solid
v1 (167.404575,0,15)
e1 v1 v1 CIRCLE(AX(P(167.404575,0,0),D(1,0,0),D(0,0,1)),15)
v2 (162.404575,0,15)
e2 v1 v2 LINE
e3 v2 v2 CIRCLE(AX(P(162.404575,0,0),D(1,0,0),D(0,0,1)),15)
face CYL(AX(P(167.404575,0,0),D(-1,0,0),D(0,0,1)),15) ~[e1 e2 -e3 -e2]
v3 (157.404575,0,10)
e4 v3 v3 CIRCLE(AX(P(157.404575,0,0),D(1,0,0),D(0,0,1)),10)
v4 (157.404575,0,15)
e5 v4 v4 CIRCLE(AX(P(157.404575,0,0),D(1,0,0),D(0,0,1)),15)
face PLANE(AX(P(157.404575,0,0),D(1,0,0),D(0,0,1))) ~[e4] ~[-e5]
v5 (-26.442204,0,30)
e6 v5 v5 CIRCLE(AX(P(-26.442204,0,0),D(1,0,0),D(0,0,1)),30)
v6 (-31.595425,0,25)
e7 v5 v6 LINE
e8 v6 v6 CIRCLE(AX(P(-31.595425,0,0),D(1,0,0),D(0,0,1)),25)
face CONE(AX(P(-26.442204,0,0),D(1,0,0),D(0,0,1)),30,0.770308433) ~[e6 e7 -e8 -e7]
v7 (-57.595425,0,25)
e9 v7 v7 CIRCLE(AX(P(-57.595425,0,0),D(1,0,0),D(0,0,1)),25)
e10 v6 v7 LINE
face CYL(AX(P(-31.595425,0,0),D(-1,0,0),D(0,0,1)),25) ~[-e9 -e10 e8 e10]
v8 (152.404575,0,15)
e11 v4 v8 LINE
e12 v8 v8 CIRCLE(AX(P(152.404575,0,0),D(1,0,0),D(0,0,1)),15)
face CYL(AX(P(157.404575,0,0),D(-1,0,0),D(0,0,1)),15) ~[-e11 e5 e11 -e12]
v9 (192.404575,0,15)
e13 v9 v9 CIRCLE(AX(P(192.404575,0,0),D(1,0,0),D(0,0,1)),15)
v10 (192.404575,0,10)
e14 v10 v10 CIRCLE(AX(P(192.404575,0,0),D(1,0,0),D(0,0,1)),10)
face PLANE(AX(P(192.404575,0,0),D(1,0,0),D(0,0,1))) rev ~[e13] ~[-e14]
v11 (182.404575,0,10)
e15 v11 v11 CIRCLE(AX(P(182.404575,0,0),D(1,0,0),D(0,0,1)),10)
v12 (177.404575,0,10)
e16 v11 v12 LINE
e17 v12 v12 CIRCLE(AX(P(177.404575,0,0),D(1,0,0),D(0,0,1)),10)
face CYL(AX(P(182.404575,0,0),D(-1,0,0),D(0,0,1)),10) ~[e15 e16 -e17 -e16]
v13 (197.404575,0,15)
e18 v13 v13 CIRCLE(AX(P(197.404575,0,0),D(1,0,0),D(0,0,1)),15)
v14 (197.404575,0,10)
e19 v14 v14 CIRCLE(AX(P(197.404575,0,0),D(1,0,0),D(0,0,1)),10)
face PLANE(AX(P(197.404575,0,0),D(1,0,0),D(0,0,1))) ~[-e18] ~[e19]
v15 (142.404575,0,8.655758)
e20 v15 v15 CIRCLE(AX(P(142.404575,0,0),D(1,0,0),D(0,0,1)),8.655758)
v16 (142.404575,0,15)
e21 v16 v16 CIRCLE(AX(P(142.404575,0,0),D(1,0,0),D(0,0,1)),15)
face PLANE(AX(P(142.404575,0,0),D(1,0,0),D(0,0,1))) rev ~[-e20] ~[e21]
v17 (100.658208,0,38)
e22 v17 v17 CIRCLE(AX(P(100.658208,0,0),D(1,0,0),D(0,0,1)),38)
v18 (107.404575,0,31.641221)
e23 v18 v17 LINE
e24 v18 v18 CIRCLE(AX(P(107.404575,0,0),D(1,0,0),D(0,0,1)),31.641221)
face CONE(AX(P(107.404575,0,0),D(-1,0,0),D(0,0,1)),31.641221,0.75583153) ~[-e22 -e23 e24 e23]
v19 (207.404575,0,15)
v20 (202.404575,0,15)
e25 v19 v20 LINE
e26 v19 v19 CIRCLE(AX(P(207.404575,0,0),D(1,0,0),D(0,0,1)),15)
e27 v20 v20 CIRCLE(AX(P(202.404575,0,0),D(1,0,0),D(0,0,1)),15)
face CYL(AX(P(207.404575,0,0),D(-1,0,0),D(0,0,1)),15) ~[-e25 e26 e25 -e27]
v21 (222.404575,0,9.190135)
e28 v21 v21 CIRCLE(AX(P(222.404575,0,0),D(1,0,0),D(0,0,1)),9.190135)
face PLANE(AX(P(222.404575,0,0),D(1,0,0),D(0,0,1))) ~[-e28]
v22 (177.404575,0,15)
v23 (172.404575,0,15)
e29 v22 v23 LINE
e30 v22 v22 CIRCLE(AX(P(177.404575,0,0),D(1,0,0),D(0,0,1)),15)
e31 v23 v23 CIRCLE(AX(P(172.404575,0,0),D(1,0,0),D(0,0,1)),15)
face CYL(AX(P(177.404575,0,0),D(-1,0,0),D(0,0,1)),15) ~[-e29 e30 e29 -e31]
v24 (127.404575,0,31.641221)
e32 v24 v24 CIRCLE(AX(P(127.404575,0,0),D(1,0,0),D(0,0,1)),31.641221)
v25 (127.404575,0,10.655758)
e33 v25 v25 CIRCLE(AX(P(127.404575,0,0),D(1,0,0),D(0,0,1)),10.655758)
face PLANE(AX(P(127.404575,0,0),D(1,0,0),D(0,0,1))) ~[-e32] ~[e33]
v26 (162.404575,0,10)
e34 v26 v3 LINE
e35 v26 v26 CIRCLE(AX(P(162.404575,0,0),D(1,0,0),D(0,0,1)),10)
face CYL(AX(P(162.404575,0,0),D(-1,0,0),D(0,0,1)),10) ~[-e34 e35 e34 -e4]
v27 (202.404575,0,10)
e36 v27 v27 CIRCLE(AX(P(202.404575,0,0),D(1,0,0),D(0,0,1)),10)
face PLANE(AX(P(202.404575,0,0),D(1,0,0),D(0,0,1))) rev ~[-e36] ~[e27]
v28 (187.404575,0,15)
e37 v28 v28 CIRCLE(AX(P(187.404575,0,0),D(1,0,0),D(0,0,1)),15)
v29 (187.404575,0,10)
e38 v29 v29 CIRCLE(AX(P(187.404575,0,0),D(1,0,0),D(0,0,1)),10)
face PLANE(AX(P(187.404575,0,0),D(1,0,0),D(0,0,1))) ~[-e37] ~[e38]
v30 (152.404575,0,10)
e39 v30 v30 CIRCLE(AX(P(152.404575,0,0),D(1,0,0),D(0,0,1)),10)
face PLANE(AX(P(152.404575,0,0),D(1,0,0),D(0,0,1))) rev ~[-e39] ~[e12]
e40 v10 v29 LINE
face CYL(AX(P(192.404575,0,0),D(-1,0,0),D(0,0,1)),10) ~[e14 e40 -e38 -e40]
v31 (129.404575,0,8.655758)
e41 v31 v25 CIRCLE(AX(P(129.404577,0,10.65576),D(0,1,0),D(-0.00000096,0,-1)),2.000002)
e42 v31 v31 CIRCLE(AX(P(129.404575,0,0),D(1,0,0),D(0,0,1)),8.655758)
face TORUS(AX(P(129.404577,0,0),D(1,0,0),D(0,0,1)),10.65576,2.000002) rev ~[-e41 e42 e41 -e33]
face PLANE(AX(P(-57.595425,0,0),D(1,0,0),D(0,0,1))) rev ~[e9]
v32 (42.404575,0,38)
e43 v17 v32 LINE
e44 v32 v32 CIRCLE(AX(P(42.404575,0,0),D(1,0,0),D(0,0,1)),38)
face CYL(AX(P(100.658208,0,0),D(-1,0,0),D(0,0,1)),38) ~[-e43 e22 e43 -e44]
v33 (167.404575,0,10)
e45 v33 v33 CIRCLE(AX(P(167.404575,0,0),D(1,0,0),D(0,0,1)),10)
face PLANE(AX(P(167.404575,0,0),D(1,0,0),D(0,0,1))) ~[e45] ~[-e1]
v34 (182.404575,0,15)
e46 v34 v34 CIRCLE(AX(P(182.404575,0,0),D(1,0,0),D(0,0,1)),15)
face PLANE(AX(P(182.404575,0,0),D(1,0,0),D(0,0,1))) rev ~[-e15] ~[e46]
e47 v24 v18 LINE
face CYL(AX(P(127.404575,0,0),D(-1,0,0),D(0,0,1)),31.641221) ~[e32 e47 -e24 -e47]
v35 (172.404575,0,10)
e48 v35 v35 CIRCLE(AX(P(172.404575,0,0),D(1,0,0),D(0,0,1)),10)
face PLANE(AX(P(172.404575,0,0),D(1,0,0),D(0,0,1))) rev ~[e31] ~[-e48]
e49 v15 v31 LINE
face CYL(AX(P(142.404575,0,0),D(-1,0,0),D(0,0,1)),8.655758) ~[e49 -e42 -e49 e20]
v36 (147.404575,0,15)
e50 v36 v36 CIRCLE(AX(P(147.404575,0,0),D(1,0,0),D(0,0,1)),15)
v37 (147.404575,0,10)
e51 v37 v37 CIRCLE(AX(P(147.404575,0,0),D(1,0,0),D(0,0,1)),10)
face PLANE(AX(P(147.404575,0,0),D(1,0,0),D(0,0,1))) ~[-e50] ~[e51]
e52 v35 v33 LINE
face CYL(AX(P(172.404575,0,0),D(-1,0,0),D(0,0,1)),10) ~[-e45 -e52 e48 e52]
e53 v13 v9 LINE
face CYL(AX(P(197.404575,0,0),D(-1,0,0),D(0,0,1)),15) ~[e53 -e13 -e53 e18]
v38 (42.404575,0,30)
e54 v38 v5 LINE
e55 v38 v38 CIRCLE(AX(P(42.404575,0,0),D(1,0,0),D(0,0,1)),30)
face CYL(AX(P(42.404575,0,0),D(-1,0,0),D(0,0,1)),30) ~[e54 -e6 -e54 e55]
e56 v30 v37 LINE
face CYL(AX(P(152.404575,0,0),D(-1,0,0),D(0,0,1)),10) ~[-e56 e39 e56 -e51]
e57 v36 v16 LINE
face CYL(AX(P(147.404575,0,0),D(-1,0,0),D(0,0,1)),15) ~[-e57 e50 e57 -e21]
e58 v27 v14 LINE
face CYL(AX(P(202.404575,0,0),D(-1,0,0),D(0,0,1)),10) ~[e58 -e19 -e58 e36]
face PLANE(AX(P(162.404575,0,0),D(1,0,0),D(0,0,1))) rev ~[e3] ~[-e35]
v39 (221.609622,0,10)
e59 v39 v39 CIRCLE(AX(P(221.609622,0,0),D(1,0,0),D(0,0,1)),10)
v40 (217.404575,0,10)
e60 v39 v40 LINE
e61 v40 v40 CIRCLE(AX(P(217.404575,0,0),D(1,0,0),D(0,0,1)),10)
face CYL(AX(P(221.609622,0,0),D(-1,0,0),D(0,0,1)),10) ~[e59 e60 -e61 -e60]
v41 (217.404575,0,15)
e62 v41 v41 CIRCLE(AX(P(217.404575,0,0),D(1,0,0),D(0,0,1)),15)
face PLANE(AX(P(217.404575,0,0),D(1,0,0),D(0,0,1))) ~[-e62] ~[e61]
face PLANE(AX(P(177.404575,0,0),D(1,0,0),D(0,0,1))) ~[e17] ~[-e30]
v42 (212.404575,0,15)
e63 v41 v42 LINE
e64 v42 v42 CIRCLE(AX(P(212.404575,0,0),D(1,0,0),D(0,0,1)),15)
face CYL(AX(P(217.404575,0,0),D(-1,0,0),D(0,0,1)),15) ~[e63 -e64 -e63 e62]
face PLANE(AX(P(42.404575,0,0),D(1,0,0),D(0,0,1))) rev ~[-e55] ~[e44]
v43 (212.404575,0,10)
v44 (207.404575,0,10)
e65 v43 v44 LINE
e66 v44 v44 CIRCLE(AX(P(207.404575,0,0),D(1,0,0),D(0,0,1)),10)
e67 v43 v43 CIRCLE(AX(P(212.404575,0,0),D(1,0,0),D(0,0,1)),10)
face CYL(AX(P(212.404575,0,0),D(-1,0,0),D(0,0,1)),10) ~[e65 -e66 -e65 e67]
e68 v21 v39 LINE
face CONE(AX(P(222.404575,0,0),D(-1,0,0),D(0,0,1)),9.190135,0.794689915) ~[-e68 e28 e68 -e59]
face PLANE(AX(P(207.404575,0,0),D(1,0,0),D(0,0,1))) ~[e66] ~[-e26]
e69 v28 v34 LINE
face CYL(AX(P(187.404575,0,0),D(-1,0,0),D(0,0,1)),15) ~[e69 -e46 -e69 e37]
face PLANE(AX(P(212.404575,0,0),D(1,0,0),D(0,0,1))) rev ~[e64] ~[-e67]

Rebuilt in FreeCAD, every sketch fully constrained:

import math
import FreeCAD as App
import Part
import Sketcher
Q = App.Units.Quantity

doc = App.newDocument("Part")
params = doc.addObject("Spreadsheet::Sheet", "Params")
for row, (alias, value) in enumerate([
    ("sketch1_radius", "2.000002 mm"),
    ("sketch1_width", "280 mm"),
    ("sketch1_width2", "5 mm"),
    ("sketch1_width3", "13 mm"),
    ("sketch1_width4", "20 mm"),
    ("revolution_angle", "360 deg"),
], start=1):
    params.set(f"A{row}", alias)
    params.set(f"B{row}", "=" + value)
    params.setAlias(f"B{row}", alias)

body = doc.addObject("PartDesign::Body", "Body")

sketch1 = body.newObject("Sketcher::SketchObject", "Sketch")
sketch1.AttachmentSupport = (doc.getObject("XZ_Plane"), [""])
sketch1.MapMode = "FlatFace"
sketch1.addGeometry([
    Part.LineSegment(App.Vector(-57.6, 25, 0), App.Vector(-57.6, 0, 0)),
    Part.LineSegment(App.Vector(-57.6, 0, 0), App.Vector(222.4, 0, 0)),
    Part.LineSegment(App.Vector(222.4, 0, 0), App.Vector(222.4, 9.2, 0)),
    Part.LineSegment(App.Vector(222.4, 9.2, 0), App.Vector(221.6, 10, 0)),
    Part.LineSegment(App.Vector(221.6, 10, 0), App.Vector(217.4, 10, 0)),
    Part.LineSegment(App.Vector(217.4, 10, 0), App.Vector(217.4, 15, 0)),
    Part.LineSegment(App.Vector(217.4, 15, 0), App.Vector(212.4, 15, 0)),
    Part.LineSegment(App.Vector(212.4, 15, 0), App.Vector(212.4, 10, 0)),
    Part.LineSegment(App.Vector(212.4, 10, 0), App.Vector(207.4, 10, 0)),
    Part.LineSegment(App.Vector(207.4, 10, 0), App.Vector(207.4, 15, 0)),
    Part.LineSegment(App.Vector(207.4, 15, 0), App.Vector(202.4, 15, 0)),
    Part.LineSegment(App.Vector(202.4, 15, 0), App.Vector(202.4, 10, 0)),
    Part.LineSegment(App.Vector(202.4, 10, 0), App.Vector(197.4, 10, 0)),
    Part.LineSegment(App.Vector(197.4, 10, 0), App.Vector(197.4, 15, 0)),
    Part.LineSegment(App.Vector(197.4, 15, 0), App.Vector(192.4, 15, 0)),
    Part.LineSegment(App.Vector(192.4, 15, 0), App.Vector(192.4, 10, 0)),
    Part.LineSegment(App.Vector(192.4, 10, 0), App.Vector(187.4, 10, 0)),
    Part.LineSegment(App.Vector(187.4, 10, 0), App.Vector(187.4, 15, 0)),
    Part.LineSegment(App.Vector(187.4, 15, 0), App.Vector(182.4, 15, 0)),
    Part.LineSegment(App.Vector(182.4, 15, 0), App.Vector(182.4, 10, 0)),
    Part.LineSegment(App.Vector(182.4, 10, 0), App.Vector(177.4, 10, 0)),
    Part.LineSegment(App.Vector(177.4, 10, 0), App.Vector(177.4, 15, 0)),
    Part.LineSegment(App.Vector(177.4, 15, 0), App.Vector(172.4, 15, 0)),
    Part.LineSegment(App.Vector(172.4, 15, 0), App.Vector(172.4, 10, 0)),
    Part.LineSegment(App.Vector(172.4, 10, 0), App.Vector(167.4, 10, 0)),
    Part.LineSegment(App.Vector(167.4, 10, 0), App.Vector(167.4, 15, 0)),
    Part.LineSegment(App.Vector(167.4, 15, 0), App.Vector(162.4, 15, 0)),
    Part.LineSegment(App.Vector(162.4, 15, 0), App.Vector(162.4, 10, 0)),
    Part.LineSegment(App.Vector(162.4, 10, 0), App.Vector(157.4, 10, 0)),
    Part.LineSegment(App.Vector(157.4, 10, 0), App.Vector(157.4, 15, 0)),
    Part.LineSegment(App.Vector(157.4, 15, 0), App.Vector(152.4, 15, 0)),
    Part.LineSegment(App.Vector(152.4, 15, 0), App.Vector(152.4, 10, 0)),
    Part.LineSegment(App.Vector(152.4, 10, 0), App.Vector(147.4, 10, 0)),
    Part.LineSegment(App.Vector(147.4, 10, 0), App.Vector(147.4, 15, 0)),
    Part.LineSegment(App.Vector(147.4, 15, 0), App.Vector(142.4, 15, 0)),
    Part.LineSegment(App.Vector(142.4, 15, 0), App.Vector(142.4, 8.7, 0)),
    Part.LineSegment(App.Vector(142.4, 8.7, 0), App.Vector(129.4, 8.7, 0)),
    Part.ArcOfCircle(Part.Circle(App.Vector(129.4, 10.7, 0), App.Vector(0, 0, 1), 2), math.radians(-180), math.radians(-90)),
    Part.LineSegment(App.Vector(127.4, 10.7, 0), App.Vector(127.4, 31.6, 0)),
    Part.LineSegment(App.Vector(127.4, 31.6, 0), App.Vector(107.4, 31.6, 0)),
    Part.LineSegment(App.Vector(107.4, 31.6, 0), App.Vector(100.7, 38, 0)),
    Part.LineSegment(App.Vector(100.7, 38, 0), App.Vector(42.4, 38, 0)),
    Part.LineSegment(App.Vector(42.4, 38, 0), App.Vector(42.4, 30, 0)),
    Part.LineSegment(App.Vector(42.4, 30, 0), App.Vector(-26.4, 30, 0)),
    Part.LineSegment(App.Vector(-26.4, 30, 0), App.Vector(-31.6, 25, 0)),
    Part.LineSegment(App.Vector(-31.6, 25, 0), App.Vector(-57.6, 25, 0)),
], False)
sketch1.addConstraint([
    Sketcher.Constraint("Coincident", 0, 2, 1, 1),
    Sketcher.Constraint("Coincident", 1, 2, 2, 1),
    Sketcher.Constraint("Coincident", 2, 2, 3, 1),
    Sketcher.Constraint("Coincident", 3, 2, 4, 1),
    Sketcher.Constraint("Coincident", 4, 2, 5, 1),
    Sketcher.Constraint("Coincident", 5, 2, 6, 1),
    Sketcher.Constraint("Coincident", 6, 2, 7, 1),
    Sketcher.Constraint("Coincident", 7, 2, 8, 1),
    Sketcher.Constraint("Coincident", 8, 2, 9, 1),
    Sketcher.Constraint("Coincident", 9, 2, 10, 1),
    Sketcher.Constraint("Coincident", 10, 2, 11, 1),
    Sketcher.Constraint("Coincident", 11, 2, 12, 1),
    Sketcher.Constraint("Coincident", 12, 2, 13, 1),
    Sketcher.Constraint("Coincident", 13, 2, 14, 1),
    Sketcher.Constraint("Coincident", 14, 2, 15, 1),
    Sketcher.Constraint("Coincident", 15, 2, 16, 1),
    Sketcher.Constraint("Coincident", 16, 2, 17, 1),
    Sketcher.Constraint("Coincident", 17, 2, 18, 1),
    Sketcher.Constraint("Coincident", 18, 2, 19, 1),
    Sketcher.Constraint("Coincident", 19, 2, 20, 1),
    Sketcher.Constraint("Coincident", 20, 2, 21, 1),
    Sketcher.Constraint("Coincident", 21, 2, 22, 1),
    Sketcher.Constraint("Coincident", 22, 2, 23, 1),
    Sketcher.Constraint("Coincident", 23, 2, 24, 1),
    Sketcher.Constraint("Coincident", 24, 2, 25, 1),
    Sketcher.Constraint("Coincident", 25, 2, 26, 1),
    Sketcher.Constraint("Coincident", 26, 2, 27, 1),
    Sketcher.Constraint("Coincident", 27, 2, 28, 1),
    Sketcher.Constraint("Coincident", 28, 2, 29, 1),
    Sketcher.Constraint("Coincident", 29, 2, 30, 1),
    Sketcher.Constraint("Coincident", 30, 2, 31, 1),
    Sketcher.Constraint("Coincident", 31, 2, 32, 1),
    Sketcher.Constraint("Coincident", 32, 2, 33, 1),
    Sketcher.Constraint("Coincident", 33, 2, 34, 1),
    Sketcher.Constraint("Coincident", 34, 2, 35, 1),
    Sketcher.Constraint("Coincident", 35, 2, 36, 1),
    Sketcher.Constraint("Tangent", 36, 2, 37, 2),
    Sketcher.Constraint("Tangent", 37, 1, 38, 1),
    Sketcher.Constraint("Coincident", 38, 2, 39, 1),
    Sketcher.Constraint("Coincident", 39, 2, 40, 1),
    Sketcher.Constraint("Coincident", 40, 2, 41, 1),
    Sketcher.Constraint("Coincident", 41, 2, 42, 1),
    Sketcher.Constraint("Coincident", 42, 2, 43, 1),
    Sketcher.Constraint("Coincident", 43, 2, 44, 1),
    Sketcher.Constraint("Coincident", 44, 2, 45, 1),
    Sketcher.Constraint("Coincident", 45, 2, 0, 1),
    Sketcher.Constraint("Vertical", 0),
    Sketcher.Constraint("Horizontal", 1),
    Sketcher.Constraint("Vertical", 2),
    Sketcher.Constraint("Horizontal", 4),
    Sketcher.Constraint("Vertical", 5),
    Sketcher.Constraint("Horizontal", 6),
    Sketcher.Constraint("Vertical", 7),
    Sketcher.Constraint("Horizontal", 8),
    Sketcher.Constraint("Vertical", 9),
    Sketcher.Constraint("Horizontal", 10),
    Sketcher.Constraint("Vertical", 11),
    Sketcher.Constraint("Horizontal", 12),
    Sketcher.Constraint("Vertical", 13),
    Sketcher.Constraint("Horizontal", 14),
    Sketcher.Constraint("Vertical", 15),
    Sketcher.Constraint("Horizontal", 16),
    Sketcher.Constraint("Vertical", 17),
    Sketcher.Constraint("Horizontal", 18),
    Sketcher.Constraint("Vertical", 19),
    Sketcher.Constraint("Horizontal", 20),
    Sketcher.Constraint("Vertical", 21),
    Sketcher.Constraint("Horizontal", 22),
    Sketcher.Constraint("Vertical", 23),
    Sketcher.Constraint("Horizontal", 24),
    Sketcher.Constraint("Vertical", 25),
    Sketcher.Constraint("Horizontal", 26),
    Sketcher.Constraint("Vertical", 27),
    Sketcher.Constraint("Horizontal", 28),
    Sketcher.Constraint("Vertical", 29),
    Sketcher.Constraint("Horizontal", 30),
    Sketcher.Constraint("Vertical", 31),
    Sketcher.Constraint("Horizontal", 32),
    Sketcher.Constraint("Vertical", 33),
    Sketcher.Constraint("Horizontal", 34),
    Sketcher.Constraint("Vertical", 35),
    Sketcher.Constraint("Horizontal", 36),
    Sketcher.Constraint("Vertical", 38),
    Sketcher.Constraint("Horizontal", 39),
    Sketcher.Constraint("Horizontal", 41),
    Sketcher.Constraint("Vertical", 42),
    Sketcher.Constraint("Horizontal", 43),
    Sketcher.Constraint("Horizontal", 45),
    Sketcher.Constraint("PointOnObject", 0, 2, -1),
    Sketcher.Constraint("Horizontal", 4, 2, 7, 2),
    Sketcher.Constraint("Horizontal", 6, 2, 9, 2),
    Sketcher.Constraint("Horizontal", 8, 2, 11, 2),
    Sketcher.Constraint("Horizontal", 10, 2, 13, 2),
    Sketcher.Constraint("Horizontal", 12, 2, 15, 2),
    Sketcher.Constraint("Horizontal", 14, 2, 17, 2),
    Sketcher.Constraint("Horizontal", 16, 2, 19, 2),
    Sketcher.Constraint("Horizontal", 18, 2, 21, 2),
    Sketcher.Constraint("Horizontal", 20, 2, 23, 2),
    Sketcher.Constraint("Horizontal", 22, 2, 25, 2),
    Sketcher.Constraint("Horizontal", 24, 2, 27, 2),
    Sketcher.Constraint("Horizontal", 26, 2, 29, 2),
    Sketcher.Constraint("Horizontal", 28, 2, 31, 2),
    Sketcher.Constraint("Horizontal", 30, 2, 33, 2),
    Sketcher.Constraint("Equal", 6, 8),
    Sketcher.Constraint("Equal", 8, 10),
    Sketcher.Constraint("Equal", 10, 12),
    Sketcher.Constraint("Equal", 12, 14),
    Sketcher.Constraint("Equal", 14, 16),
    Sketcher.Constraint("Equal", 16, 18),
    Sketcher.Constraint("Equal", 18, 20),
    Sketcher.Constraint("Equal", 20, 22),
    Sketcher.Constraint("Equal", 22, 24),
    Sketcher.Constraint("Equal", 24, 26),
    Sketcher.Constraint("Equal", 26, 28),
    Sketcher.Constraint("Equal", 28, 30),
    Sketcher.Constraint("Equal", 30, 32),
    Sketcher.Constraint("Equal", 32, 34),
    Sketcher.Constraint("Equal", 34, 5),
    Sketcher.Constraint("Radius", 37, Q("2.000002 mm")),
    Sketcher.Constraint("DistanceX", 1, 1, 1, 2, Q("280 mm")),
    Sketcher.Constraint("DistanceX", 6, 2, 6, 1, Q("5 mm")),
    Sketcher.Constraint("DistanceX", 36, 2, 36, 1, Q("13 mm")),
    Sketcher.Constraint("DistanceX", 39, 2, 39, 1, Q("20 mm")),
    Sketcher.Constraint("DistanceX", 45, 2, 45, 1, Q("26 mm")),
    Sketcher.Constraint("DistanceY", 0, 2, 0, 1, Q("25 mm")),
    Sketcher.Constraint("DistanceY", 42, 2, 42, 1, Q("8 mm")),
    Sketcher.Constraint("DistanceY", -1, 1, 3, 2, Q("10 mm")),
    Sketcher.Constraint("DistanceY", -1, 1, 40, 2, Q("38 mm")),
    Sketcher.Constraint("DistanceX", 0, 2, 37, 3, Q("187.000002 mm")),
    Sketcher.Constraint("DistanceX", 41, 2, 39, 2, Q("65 mm")),
    Sketcher.Constraint("DistanceX", 43, 2, 43, 1, Q("68.846779 mm")),
    Sketcher.Constraint("DistanceY", 35, 2, 35, 1, Q("6.344242 mm")),
    Sketcher.Constraint("Distance", 40, Q("9.27079 mm")),
    Sketcher.Constraint("DistanceX", 4, 2, 4, 1, Q("4.205047 mm")),
    Sketcher.Constraint("DistanceX", 41, 2, 41, 1, Q("58.253633 mm")),
    Sketcher.Constraint("DistanceY", 2, 1, 2, 2, Q("9.190135 mm")),
    Sketcher.Constraint("DistanceX", -1, 1, 3, 2, Q("221.609622 mm")),
])
sketch1.setExpression("Constraints[118]", "Params.sketch1_radius")
sketch1.setExpression("Constraints[119]", "Params.sketch1_width")
sketch1.setExpression("Constraints[120]", "Params.sketch1_width2")
sketch1.setExpression("Constraints[121]", "Params.sketch1_width3")
sketch1.setExpression("Constraints[122]", "Params.sketch1_width4")
revolution = body.newObject("PartDesign::Revolution", "Revolution")
revolution.Profile = sketch1
revolution.ReferenceAxis = (sketch1, ["H_Axis"])
revolution.setExpression("Angle", "Params.revolution_angle")

doc.recompute()
